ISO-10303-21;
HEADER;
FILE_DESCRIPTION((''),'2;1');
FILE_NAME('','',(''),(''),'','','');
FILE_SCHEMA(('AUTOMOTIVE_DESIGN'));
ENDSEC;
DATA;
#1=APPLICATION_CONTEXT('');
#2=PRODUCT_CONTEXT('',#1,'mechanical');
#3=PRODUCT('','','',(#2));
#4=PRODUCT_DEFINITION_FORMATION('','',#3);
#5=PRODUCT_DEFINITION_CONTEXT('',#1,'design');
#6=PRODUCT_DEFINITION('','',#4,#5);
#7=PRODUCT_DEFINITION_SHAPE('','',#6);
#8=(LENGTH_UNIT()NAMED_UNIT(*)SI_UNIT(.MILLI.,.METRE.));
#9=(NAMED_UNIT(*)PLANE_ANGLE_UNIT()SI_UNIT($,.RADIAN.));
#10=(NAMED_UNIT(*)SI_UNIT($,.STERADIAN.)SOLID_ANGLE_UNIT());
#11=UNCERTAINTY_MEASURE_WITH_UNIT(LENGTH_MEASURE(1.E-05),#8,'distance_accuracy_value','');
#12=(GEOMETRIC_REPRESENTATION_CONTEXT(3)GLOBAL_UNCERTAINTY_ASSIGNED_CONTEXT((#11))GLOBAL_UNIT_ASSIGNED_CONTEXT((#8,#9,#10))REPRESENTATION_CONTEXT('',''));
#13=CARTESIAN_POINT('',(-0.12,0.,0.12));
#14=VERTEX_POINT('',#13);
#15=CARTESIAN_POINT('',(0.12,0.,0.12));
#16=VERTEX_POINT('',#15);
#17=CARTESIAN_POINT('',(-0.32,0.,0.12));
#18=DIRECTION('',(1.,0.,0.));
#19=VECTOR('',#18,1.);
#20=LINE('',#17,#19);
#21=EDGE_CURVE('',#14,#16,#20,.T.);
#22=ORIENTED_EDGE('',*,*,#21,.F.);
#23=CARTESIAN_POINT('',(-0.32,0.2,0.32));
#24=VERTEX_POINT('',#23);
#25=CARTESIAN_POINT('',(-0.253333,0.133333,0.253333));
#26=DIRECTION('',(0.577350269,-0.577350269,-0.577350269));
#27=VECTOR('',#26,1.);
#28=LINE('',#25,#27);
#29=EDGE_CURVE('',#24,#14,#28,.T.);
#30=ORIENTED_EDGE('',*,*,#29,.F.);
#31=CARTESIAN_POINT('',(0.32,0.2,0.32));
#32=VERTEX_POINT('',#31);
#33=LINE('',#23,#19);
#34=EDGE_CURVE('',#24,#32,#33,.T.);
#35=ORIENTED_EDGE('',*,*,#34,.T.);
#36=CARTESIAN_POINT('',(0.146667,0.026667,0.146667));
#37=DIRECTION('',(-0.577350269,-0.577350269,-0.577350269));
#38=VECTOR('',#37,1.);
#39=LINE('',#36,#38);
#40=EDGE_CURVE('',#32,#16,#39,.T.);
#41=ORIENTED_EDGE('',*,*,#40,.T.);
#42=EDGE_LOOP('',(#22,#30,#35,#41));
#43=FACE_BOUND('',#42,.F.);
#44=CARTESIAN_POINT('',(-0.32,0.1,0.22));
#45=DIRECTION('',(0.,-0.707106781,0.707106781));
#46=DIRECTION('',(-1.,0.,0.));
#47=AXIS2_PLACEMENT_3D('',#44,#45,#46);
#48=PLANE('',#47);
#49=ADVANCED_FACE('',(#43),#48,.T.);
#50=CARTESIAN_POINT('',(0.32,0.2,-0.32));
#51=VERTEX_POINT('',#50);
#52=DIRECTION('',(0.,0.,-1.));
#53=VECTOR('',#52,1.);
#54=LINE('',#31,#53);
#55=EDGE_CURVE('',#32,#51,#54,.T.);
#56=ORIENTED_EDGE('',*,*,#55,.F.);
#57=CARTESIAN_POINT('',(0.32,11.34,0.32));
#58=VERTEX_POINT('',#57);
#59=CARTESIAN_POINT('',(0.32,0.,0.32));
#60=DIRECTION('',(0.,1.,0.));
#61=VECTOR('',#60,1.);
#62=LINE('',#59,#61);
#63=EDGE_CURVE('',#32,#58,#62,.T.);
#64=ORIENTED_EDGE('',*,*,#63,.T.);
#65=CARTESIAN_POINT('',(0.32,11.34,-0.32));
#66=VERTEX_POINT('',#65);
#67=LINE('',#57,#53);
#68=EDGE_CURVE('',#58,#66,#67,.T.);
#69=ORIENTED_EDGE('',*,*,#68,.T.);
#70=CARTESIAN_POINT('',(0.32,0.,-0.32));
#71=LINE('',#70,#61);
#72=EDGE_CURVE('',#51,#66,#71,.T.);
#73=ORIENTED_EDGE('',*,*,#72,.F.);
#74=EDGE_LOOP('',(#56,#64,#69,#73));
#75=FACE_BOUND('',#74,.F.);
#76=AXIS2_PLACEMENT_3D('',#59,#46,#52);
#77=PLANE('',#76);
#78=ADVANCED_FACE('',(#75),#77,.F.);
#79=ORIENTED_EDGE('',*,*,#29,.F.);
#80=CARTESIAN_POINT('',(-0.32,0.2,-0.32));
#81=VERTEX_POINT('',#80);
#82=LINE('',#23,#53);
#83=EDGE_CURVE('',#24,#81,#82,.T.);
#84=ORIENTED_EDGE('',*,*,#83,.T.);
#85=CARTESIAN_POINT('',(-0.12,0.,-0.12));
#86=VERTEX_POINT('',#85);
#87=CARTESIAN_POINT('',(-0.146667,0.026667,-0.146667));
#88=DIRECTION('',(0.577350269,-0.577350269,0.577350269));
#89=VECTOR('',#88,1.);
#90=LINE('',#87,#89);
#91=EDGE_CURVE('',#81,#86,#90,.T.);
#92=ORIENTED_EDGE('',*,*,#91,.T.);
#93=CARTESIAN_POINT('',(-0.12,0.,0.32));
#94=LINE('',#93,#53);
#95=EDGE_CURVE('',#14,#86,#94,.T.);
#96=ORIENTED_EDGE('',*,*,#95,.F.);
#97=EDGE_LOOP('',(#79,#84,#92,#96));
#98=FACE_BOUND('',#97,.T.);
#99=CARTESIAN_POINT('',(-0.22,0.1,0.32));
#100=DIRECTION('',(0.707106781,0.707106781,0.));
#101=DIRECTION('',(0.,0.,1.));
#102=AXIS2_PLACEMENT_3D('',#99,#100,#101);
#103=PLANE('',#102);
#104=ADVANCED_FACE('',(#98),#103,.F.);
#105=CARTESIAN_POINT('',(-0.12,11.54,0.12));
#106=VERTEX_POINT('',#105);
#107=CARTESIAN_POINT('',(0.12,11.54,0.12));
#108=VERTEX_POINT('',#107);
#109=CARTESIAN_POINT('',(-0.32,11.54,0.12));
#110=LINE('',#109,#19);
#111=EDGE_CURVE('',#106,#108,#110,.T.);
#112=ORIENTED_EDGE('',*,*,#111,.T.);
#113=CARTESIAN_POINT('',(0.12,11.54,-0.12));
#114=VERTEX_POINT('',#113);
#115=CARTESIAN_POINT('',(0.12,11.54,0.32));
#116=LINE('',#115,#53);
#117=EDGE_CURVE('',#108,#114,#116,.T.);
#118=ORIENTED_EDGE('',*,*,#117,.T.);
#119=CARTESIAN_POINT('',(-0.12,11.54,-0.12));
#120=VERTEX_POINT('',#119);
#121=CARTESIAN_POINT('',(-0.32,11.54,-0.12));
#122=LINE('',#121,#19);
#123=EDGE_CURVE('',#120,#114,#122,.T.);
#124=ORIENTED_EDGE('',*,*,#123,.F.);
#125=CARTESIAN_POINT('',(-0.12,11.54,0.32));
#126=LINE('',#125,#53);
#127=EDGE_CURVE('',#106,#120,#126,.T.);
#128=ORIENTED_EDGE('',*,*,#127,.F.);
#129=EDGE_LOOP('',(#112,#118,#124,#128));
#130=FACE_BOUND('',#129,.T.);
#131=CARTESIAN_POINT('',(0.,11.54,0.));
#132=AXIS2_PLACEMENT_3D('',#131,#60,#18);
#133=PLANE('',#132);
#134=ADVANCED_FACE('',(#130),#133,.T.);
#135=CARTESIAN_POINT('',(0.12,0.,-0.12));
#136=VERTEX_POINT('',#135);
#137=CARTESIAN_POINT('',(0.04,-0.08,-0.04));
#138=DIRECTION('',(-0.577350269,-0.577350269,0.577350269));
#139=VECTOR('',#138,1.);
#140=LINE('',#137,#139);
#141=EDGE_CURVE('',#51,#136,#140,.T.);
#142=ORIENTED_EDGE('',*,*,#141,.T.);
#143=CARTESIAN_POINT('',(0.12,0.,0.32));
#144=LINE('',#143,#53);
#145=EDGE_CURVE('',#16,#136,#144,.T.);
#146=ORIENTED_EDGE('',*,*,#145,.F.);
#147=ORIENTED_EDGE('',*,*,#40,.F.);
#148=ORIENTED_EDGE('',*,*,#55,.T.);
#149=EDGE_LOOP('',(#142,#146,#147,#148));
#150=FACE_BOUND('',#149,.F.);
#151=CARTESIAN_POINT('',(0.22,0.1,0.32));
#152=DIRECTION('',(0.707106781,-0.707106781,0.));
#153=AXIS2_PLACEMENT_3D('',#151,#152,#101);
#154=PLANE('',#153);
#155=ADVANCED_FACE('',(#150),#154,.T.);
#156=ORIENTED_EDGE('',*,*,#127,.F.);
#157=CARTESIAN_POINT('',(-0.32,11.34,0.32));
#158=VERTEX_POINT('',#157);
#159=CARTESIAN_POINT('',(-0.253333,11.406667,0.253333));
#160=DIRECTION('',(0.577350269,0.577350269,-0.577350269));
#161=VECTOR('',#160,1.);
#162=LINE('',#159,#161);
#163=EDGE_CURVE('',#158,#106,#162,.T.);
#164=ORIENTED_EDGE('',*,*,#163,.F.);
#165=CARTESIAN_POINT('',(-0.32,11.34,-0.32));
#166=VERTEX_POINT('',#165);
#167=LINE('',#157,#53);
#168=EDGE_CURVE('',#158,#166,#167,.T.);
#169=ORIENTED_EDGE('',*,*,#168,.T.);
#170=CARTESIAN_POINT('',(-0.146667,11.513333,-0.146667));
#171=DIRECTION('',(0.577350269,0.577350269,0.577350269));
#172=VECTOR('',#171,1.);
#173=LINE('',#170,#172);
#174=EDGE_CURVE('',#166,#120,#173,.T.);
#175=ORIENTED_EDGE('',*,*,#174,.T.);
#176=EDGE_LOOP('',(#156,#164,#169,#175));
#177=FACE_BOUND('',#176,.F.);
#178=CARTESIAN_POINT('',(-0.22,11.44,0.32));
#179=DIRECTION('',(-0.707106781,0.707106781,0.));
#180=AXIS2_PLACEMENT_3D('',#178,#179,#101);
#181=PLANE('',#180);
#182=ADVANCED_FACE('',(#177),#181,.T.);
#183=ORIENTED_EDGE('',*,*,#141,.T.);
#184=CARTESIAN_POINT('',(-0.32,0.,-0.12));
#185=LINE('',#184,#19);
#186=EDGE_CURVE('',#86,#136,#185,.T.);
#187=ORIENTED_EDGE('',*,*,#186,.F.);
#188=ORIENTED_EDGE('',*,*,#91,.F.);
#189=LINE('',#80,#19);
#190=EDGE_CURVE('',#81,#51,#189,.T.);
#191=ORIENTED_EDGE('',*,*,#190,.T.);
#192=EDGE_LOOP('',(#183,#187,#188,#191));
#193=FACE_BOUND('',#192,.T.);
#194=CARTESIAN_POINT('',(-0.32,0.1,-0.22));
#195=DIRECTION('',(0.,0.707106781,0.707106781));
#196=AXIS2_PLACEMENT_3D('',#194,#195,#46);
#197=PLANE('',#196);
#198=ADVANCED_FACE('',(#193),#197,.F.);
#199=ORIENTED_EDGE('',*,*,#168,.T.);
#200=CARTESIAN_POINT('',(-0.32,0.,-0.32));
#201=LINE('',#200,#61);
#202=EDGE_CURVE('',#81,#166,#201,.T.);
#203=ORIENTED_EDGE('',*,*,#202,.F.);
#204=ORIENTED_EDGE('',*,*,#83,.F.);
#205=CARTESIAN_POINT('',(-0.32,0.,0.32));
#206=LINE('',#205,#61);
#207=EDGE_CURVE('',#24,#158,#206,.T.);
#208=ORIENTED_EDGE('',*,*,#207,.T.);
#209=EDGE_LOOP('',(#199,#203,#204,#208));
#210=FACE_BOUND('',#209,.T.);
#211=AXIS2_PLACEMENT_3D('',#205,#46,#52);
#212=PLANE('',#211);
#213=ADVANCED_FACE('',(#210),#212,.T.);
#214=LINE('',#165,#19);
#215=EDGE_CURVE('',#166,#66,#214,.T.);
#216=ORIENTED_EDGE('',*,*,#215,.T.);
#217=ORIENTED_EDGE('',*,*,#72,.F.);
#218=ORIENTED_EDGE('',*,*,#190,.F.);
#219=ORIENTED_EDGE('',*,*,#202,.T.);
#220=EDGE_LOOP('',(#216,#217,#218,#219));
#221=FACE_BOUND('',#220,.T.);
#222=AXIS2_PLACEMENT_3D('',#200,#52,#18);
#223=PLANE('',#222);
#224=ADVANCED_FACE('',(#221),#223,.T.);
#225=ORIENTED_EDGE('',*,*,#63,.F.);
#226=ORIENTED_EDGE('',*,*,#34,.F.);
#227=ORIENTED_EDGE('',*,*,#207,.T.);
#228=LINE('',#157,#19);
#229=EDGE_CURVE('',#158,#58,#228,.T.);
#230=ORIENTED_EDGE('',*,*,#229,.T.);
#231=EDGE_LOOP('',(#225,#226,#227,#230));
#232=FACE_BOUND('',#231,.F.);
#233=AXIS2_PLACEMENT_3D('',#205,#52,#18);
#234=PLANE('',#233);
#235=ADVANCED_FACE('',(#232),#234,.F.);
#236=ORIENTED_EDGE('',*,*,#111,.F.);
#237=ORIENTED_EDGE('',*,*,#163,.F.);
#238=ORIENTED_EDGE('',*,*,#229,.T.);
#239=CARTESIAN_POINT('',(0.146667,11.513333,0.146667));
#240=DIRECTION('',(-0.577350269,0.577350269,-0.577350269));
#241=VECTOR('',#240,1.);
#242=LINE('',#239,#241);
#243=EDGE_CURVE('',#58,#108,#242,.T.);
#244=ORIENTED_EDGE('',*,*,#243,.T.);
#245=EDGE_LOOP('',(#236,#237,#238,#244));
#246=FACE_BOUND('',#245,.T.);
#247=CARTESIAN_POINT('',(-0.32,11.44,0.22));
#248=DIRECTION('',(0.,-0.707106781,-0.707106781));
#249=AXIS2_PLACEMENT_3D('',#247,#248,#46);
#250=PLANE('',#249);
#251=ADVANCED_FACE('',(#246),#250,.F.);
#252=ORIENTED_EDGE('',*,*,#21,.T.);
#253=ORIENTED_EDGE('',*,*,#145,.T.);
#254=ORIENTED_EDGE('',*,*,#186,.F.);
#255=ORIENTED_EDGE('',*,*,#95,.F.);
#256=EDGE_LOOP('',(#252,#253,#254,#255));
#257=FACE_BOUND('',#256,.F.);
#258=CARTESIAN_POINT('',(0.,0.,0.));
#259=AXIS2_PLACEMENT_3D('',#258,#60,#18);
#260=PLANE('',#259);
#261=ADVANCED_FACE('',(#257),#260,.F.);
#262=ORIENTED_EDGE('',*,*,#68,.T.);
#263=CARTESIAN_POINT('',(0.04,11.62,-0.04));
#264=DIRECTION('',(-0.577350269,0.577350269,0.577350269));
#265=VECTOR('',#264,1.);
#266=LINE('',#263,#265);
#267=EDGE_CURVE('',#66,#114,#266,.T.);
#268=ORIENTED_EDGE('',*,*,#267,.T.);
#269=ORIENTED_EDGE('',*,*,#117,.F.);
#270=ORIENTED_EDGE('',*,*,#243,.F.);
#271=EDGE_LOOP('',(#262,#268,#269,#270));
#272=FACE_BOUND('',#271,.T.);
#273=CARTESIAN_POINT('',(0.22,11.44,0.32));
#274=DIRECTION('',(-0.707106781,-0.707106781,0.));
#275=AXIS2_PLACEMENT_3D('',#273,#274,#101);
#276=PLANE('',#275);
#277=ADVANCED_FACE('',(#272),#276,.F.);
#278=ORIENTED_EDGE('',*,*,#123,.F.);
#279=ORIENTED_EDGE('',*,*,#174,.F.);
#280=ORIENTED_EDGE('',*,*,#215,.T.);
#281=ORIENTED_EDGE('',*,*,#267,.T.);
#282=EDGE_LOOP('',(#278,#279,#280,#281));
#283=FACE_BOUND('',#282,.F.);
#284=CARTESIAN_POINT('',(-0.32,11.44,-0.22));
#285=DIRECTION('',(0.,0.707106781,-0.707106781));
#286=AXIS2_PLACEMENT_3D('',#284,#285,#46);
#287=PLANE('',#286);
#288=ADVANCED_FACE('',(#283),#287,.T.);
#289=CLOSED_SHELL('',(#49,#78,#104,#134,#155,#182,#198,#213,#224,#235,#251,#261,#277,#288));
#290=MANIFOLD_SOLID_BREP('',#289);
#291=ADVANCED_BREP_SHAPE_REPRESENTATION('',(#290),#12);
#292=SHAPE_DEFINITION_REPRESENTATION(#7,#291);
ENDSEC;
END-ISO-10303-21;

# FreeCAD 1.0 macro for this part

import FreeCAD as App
import Part
import Sketcher

V = App.Vector
Q = App.Units.Quantity


def edges_at(feature, points):
    """Names of the edges that pass closest to the given points."""
    edges = feature.Shape.Edges
    near = lambda p: min(range(len(edges)), key=lambda i: edges[i].distToShape(Part.Vertex(*p))[0])
    return sorted({f"Edge{near(p) + 1}" for p in points})

doc = App.newDocument("Part")
body = doc.addObject("PartDesign::Body", "Body")

# Sketch on XZ plane
sketch1 = doc.addObject("Sketcher::SketchObject", "Sketch")
body.addObject(sketch1)
sketch1.AttachmentSupport = (doc.XZ_Plane, [""])
sketch1.MapMode = "FlatFace"
sketch1.addGeometry(Part.LineSegment(V(-0.3, -0.3, 0), V(-0.3, 0.3, 0)), False)
sketch1.addGeometry(Part.LineSegment(V(-0.3, 0.3, 0), V(0.3, 0.3, 0)), False)
sketch1.addGeometry(Part.LineSegment(V(0.3, 0.3, 0), V(0.3, -0.3, 0)), False)
sketch1.addGeometry(Part.LineSegment(V(0.3, -0.3, 0), V(-0.3, -0.3, 0)), False)
sketch1.addConstraint(Sketcher.Constraint("Coincident", 0, 2, 1, 1))
sketch1.addConstraint(Sketcher.Constraint("Coincident", 1, 2, 2, 1))
sketch1.addConstraint(Sketcher.Constraint("Coincident", 2, 2, 3, 1))
sketch1.addConstraint(Sketcher.Constraint("Coincident", 3, 2, 0, 1))
sketch1.addConstraint(Sketcher.Constraint("Vertical", 0))
sketch1.addConstraint(Sketcher.Constraint("Horizontal", 1))
sketch1.addConstraint(Sketcher.Constraint("Vertical", 2))
sketch1.addConstraint(Sketcher.Constraint("Horizontal", 3))
sketch1.addConstraint(Sketcher.Constraint("Symmetric", 0, 2, 2, 2, -1, 1))
sketch1.addConstraint(Sketcher.Constraint("Equal", 3, 0))
sketch1.addConstraint(Sketcher.Constraint("DistanceX", 1, 1, 1, 2, Q("0.64 mm")))
pad1 = doc.addObject("PartDesign::Pad", "Pad")
body.addObject(pad1)
pad1.Profile = sketch1
pad1.Length = 11.54
pad1.Reversed = True
doc.recompute()

chamfer = doc.addObject("PartDesign::Chamfer", "Chamfer")
body.addObject(chamfer)
chamfer.Base = (pad1, edges_at(pad1, [
    (0.32, 11.54, 0),
    (0, 11.54, -0.32),
    (-0.32, 11.54, 0),
    (0, 0, -0.32),
    (0.32, 0, 0),
    (0, 0, 0.32),
    (-0.32, 0, 0),
    (0, 11.54, 0.32),
]))
chamfer.Size = 0.2

doc.recompute()
